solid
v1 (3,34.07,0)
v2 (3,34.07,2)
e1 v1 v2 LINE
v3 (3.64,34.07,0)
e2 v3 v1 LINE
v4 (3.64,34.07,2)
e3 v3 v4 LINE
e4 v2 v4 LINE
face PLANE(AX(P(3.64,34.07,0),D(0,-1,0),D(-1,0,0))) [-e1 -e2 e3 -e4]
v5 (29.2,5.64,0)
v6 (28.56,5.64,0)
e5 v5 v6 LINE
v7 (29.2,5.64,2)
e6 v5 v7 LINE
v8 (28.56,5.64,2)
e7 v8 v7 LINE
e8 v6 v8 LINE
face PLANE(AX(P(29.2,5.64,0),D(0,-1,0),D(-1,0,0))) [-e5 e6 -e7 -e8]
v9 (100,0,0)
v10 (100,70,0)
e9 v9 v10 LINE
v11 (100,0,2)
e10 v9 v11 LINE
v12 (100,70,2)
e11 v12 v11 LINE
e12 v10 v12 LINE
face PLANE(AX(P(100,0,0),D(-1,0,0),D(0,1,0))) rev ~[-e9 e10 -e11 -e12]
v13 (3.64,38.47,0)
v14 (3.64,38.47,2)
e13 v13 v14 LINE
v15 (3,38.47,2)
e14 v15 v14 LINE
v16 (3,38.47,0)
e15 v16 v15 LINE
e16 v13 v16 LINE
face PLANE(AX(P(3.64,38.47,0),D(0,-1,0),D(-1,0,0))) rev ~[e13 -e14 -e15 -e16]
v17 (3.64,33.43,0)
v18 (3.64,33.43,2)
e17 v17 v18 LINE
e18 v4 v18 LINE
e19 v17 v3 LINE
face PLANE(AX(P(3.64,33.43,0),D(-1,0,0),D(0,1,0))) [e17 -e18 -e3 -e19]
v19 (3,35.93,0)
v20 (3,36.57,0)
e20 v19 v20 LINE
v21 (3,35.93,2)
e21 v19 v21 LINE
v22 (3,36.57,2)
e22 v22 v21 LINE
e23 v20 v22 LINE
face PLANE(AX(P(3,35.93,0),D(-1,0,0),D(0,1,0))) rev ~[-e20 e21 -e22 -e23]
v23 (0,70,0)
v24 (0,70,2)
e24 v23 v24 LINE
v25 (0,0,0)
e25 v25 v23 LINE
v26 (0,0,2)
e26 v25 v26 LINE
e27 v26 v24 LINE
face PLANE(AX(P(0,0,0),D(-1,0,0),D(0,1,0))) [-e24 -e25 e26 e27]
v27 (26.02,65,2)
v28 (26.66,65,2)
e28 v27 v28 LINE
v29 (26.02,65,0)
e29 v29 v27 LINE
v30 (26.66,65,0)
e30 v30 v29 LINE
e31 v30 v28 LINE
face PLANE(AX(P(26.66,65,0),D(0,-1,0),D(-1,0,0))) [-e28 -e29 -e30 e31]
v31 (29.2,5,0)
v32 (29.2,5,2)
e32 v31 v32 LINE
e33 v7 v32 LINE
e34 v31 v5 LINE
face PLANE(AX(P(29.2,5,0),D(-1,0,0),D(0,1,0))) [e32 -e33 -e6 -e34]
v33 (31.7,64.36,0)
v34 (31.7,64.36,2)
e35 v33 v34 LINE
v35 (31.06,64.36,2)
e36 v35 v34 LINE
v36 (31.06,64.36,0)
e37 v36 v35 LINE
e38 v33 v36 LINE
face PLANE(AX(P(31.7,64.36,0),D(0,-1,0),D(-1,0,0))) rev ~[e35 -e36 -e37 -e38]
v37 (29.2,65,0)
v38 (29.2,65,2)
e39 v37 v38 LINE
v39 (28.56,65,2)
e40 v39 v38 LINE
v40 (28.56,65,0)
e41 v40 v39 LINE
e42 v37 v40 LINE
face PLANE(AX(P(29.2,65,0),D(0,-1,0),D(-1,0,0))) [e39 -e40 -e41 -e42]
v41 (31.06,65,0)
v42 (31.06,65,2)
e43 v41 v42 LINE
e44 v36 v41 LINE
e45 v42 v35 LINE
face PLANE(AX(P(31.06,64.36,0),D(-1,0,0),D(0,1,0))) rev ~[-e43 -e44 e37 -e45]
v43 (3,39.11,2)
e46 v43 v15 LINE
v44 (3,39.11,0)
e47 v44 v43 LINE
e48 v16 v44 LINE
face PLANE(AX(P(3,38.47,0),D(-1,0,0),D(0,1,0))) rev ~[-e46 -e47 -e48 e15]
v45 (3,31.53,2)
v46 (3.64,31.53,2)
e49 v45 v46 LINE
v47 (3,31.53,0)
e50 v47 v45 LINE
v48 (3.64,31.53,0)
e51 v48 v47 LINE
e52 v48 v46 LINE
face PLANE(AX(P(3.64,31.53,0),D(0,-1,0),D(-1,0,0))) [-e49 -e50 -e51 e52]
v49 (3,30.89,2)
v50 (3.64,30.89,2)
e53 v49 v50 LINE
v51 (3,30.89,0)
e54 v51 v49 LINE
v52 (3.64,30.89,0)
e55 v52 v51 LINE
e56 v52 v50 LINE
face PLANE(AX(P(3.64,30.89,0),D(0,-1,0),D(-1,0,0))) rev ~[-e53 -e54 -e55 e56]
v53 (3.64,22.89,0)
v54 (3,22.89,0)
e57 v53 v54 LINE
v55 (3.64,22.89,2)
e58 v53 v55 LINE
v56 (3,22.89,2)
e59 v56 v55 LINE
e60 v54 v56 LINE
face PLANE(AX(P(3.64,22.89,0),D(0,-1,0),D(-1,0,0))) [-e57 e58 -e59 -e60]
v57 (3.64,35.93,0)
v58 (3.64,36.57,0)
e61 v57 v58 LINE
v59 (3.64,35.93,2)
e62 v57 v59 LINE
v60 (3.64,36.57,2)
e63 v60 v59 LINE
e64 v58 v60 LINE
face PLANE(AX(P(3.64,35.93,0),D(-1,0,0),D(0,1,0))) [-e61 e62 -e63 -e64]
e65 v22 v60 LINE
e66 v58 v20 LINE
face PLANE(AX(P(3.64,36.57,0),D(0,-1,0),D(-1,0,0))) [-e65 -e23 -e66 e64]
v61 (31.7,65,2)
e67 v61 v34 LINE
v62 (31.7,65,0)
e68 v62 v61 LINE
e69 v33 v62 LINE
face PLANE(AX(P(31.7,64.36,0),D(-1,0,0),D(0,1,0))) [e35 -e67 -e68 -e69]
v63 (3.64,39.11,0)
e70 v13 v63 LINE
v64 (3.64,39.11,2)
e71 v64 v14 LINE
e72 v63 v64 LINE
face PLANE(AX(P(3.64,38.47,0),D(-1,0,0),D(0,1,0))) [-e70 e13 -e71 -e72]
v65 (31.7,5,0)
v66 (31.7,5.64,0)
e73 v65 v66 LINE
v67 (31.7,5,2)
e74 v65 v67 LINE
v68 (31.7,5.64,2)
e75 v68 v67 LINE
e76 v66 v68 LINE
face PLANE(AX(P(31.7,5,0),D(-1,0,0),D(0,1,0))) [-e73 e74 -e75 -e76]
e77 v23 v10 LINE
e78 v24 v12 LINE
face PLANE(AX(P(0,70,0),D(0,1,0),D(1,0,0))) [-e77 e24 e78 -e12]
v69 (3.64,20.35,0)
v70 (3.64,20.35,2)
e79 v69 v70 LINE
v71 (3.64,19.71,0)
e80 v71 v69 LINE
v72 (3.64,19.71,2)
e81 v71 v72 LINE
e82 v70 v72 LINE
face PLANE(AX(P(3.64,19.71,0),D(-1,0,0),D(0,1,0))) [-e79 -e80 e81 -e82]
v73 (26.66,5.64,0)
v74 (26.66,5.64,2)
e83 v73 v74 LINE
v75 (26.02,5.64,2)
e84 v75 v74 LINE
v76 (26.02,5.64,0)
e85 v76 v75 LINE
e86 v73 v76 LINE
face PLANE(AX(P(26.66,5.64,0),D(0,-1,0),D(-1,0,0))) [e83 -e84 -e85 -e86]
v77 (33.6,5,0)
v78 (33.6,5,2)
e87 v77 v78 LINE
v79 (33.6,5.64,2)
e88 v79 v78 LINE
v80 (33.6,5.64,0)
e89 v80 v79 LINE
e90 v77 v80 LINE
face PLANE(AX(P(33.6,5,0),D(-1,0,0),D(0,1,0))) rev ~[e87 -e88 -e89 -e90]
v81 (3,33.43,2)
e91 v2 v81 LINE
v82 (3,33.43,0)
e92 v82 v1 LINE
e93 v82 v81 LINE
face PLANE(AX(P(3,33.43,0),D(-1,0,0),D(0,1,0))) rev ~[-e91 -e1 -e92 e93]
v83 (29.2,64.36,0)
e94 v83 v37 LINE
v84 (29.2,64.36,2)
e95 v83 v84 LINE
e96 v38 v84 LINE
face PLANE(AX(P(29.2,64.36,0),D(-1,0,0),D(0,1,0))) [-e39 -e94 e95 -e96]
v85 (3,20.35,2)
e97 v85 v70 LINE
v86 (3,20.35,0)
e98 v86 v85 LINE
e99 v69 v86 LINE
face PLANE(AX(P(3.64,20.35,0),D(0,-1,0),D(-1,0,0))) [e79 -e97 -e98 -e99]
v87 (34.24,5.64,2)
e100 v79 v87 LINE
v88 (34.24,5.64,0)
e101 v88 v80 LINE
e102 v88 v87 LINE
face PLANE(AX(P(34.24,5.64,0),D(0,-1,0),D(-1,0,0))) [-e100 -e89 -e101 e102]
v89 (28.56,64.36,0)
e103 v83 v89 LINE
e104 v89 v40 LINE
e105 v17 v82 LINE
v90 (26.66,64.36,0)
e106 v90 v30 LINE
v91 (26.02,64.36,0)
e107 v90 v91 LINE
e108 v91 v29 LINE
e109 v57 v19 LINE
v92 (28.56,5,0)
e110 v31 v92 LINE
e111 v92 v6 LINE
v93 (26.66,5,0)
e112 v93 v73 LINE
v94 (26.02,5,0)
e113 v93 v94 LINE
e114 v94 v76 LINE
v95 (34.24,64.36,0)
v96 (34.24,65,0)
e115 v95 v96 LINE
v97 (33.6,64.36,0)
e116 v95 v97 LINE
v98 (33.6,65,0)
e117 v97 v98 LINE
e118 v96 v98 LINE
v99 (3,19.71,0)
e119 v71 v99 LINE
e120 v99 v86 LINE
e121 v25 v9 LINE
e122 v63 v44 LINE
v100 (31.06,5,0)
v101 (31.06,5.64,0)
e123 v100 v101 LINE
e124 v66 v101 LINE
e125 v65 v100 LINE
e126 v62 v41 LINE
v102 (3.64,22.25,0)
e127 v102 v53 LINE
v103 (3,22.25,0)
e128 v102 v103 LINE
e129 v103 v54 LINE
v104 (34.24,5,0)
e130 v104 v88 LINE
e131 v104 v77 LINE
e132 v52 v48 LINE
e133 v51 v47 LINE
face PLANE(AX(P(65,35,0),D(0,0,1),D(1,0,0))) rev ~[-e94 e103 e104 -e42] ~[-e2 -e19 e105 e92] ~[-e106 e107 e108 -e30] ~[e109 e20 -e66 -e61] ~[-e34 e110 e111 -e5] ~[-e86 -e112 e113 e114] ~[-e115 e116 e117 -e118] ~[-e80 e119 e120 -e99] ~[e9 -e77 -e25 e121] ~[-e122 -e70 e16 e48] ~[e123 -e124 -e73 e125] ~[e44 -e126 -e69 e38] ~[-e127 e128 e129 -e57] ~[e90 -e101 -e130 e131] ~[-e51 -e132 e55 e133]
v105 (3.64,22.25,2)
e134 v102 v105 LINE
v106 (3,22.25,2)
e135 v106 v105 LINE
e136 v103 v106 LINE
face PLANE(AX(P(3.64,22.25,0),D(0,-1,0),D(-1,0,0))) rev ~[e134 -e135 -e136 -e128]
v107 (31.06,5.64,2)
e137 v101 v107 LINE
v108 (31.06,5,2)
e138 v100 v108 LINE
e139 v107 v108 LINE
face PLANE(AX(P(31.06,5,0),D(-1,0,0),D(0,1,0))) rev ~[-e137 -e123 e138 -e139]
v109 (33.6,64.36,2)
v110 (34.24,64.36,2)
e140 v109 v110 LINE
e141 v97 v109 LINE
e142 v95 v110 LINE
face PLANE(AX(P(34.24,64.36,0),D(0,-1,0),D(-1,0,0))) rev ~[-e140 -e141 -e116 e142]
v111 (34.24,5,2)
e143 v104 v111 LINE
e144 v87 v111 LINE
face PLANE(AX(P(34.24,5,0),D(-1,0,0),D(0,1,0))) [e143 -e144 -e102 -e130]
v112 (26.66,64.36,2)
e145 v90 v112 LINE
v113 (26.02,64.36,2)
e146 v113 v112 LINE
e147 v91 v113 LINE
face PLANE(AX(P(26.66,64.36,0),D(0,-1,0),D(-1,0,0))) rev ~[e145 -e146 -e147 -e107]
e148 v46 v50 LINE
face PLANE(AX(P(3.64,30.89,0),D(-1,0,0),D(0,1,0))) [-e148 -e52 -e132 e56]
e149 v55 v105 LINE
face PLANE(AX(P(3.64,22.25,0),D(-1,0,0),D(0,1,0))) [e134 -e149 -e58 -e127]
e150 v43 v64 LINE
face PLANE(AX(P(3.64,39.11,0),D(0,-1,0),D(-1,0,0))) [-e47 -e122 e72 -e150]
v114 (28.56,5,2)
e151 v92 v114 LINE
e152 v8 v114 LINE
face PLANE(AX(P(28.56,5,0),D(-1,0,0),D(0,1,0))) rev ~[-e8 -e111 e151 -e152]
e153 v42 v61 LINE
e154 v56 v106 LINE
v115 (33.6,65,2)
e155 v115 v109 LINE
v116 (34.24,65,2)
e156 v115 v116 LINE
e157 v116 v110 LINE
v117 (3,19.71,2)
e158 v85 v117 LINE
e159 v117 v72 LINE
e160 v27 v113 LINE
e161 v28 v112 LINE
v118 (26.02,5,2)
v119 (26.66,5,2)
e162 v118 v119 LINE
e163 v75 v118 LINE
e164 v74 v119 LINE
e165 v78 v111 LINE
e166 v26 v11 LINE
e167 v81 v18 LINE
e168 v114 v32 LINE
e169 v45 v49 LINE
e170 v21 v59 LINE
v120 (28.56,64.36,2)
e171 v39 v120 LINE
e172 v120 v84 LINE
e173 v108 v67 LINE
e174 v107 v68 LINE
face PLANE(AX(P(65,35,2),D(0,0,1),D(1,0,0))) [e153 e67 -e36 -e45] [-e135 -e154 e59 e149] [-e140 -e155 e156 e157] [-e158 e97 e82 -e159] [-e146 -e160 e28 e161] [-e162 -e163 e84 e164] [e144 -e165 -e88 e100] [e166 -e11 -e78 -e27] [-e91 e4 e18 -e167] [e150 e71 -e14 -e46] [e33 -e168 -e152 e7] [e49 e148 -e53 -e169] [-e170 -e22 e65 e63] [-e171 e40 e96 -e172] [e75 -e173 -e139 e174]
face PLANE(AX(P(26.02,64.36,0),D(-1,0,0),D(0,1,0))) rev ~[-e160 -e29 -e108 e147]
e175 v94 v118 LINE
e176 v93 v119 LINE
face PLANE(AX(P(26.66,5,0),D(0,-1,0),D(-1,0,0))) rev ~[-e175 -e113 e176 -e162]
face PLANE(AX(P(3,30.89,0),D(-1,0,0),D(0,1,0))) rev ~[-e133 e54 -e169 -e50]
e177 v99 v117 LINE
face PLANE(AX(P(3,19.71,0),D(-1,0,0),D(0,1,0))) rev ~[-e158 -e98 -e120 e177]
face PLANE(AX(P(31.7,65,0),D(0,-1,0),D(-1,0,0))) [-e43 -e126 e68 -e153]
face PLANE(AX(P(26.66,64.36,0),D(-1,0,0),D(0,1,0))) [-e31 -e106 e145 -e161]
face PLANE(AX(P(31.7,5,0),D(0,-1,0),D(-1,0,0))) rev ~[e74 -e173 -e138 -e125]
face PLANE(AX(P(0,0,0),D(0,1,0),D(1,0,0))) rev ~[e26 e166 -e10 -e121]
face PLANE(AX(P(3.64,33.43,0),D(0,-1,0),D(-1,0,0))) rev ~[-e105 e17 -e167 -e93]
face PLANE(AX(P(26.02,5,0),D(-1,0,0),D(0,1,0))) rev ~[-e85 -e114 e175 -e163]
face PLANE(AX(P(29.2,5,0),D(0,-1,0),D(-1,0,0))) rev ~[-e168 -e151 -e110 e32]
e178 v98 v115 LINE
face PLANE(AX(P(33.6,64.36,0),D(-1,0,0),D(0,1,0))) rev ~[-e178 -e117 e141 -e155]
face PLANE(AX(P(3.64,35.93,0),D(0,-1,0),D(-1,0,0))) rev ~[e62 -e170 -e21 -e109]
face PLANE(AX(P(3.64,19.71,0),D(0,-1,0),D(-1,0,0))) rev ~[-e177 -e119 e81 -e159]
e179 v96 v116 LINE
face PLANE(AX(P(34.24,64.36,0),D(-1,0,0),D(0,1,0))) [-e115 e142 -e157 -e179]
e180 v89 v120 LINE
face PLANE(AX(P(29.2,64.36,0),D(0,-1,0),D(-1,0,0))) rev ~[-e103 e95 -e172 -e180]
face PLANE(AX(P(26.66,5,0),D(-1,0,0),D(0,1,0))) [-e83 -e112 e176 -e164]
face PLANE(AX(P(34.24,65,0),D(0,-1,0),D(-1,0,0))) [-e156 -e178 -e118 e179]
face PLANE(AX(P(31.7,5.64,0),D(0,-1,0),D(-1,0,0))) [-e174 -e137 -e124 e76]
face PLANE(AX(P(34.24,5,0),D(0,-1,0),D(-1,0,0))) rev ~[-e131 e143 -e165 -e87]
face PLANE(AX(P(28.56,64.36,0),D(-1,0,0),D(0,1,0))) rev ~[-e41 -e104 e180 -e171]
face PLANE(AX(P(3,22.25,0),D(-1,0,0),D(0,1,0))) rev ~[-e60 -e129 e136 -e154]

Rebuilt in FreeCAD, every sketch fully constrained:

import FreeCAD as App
import Part
import Sketcher
Q = App.Units.Quantity


def add_polygon(sketch, points):
    """Adds a closed chain of lines whose ends are joined by coincident constraints."""
    first, n = sketch.GeometryCount, len(points)
    for a, b in zip(points, points[1:] + points[:1]):
        sketch.addGeometry(Part.LineSegment(App.Vector(*a, 0), App.Vector(*b, 0)), False)
    for i in range(n):
        sketch.addConstraint(Sketcher.Constraint("Coincident", first + i, 2, first + (i + 1) % n, 1))

doc = App.newDocument("Part")
body = doc.addObject("PartDesign::Body", "Body")

sketch1 = body.newObject("Sketcher::SketchObject", "Sketch")
sketch1.AttachmentSupport = (doc.getObject("XY_Plane"), [""])
sketch1.MapMode = "FlatFace"
add_polygon(sketch1, [(0, 70), (0, 0), (130, 0), (130, 70)])
sketch1.addConstraint(Sketcher.Constraint("Vertical", 0))
sketch1.addConstraint(Sketcher.Constraint("Horizontal", 1))
sketch1.addConstraint(Sketcher.Constraint("Vertical", 2))
sketch1.addConstraint(Sketcher.Constraint("Horizontal", 3))
sketch1.addConstraint(Sketcher.Constraint("Coincident", 0, 2, -1, 1))
sketch1.addConstraint(Sketcher.Constraint("DistanceX", 1, 1, 1, 2, Q("130 mm")))
sketch1.addConstraint(Sketcher.Constraint("DistanceY", 0, 2, 0, 1, Q("70 mm")))
pad1 = body.newObject("PartDesign::Pad", "Pad")
pad1.Profile = sketch1
pad1.Length = 2

sketch2 = body.newObject("Sketcher::SketchObject", "Sketch001")
sketch2.AttachmentSupport = (doc.getObject("XY_Plane"), [""])
sketch2.MapMode = "FlatFace"
add_polygon(sketch2, [(130, 70), (130, 0), (100, 0), (100, 70)])
sketch2.addConstraint(Sketcher.Constraint("Vertical", 0))
sketch2.addConstraint(Sketcher.Constraint("Horizontal", 1))
sketch2.addConstraint(Sketcher.Constraint("Vertical", 2))
sketch2.addConstraint(Sketcher.Constraint("Horizontal", 3))
sketch2.addConstraint(Sketcher.Constraint("PointOnObject", 0, 2, -1))
sketch2.addConstraint(Sketcher.Constraint("DistanceX", 1, 2, 1, 1, Q("30 mm")))
sketch2.addConstraint(Sketcher.Constraint("DistanceY", 0, 2, 0, 1, Q("70 mm")))
sketch2.addConstraint(Sketcher.Constraint("DistanceX", -1, 1, 0, 2, Q("130 mm")))
pocket1 = body.newObject("PartDesign::Pocket", "Pocket")
pocket1.Profile = sketch2
pocket1.Type = "ThroughAll"
pocket1.Reversed = True

sketch3 = body.newObject("Sketcher::SketchObject", "Sketch002")
sketch3.AttachmentSupport = (doc.getObject("XY_Plane"), [""])
sketch3.MapMode = "FlatFace"
add_polygon(sketch3, [(3.6, 36.6), (3.6, 35.9), (3, 35.9), (3, 36.6)])
add_polygon(sketch3, [(3.6, 31.5), (3.6, 30.9), (3, 30.9), (3, 31.5)])
add_polygon(sketch3, [(3.6, 39.1), (3.6, 38.5), (3, 38.5), (3, 39.1)])
add_polygon(sketch3, [(3.6, 34.1), (3.6, 33.4), (3, 33.4), (3, 34.1)])
add_polygon(sketch3, [(29.2, 5.6), (29.2, 5), (28.6, 5), (28.6, 5.6)])
add_polygon(sketch3, [(34.2, 5.6), (34.2, 5), (33.6, 5), (33.6, 5.6)])
add_polygon(sketch3, [(26.7, 5.6), (26.7, 5), (26, 5), (26, 5.6)])
add_polygon(sketch3, [(31.7, 5.6), (31.7, 5), (31.1, 5), (31.1, 5.6)])
add_polygon(sketch3, [(34.2, 65), (34.2, 64.4), (33.6, 64.4), (33.6, 65)])
add_polygon(sketch3, [(31.7, 65), (31.7, 64.4), (31.1, 64.4), (31.1, 65)])
add_polygon(sketch3, [(26.7, 65), (26.7, 64.4), (26, 64.4), (26, 65)])
add_polygon(sketch3, [(29.2, 65), (29.2, 64.4), (28.6, 64.4), (28.6, 65)])
add_polygon(sketch3, [(3.6, 20.4), (3.6, 19.7), (3, 19.7), (3, 20.4)])
add_polygon(sketch3, [(3.6, 22.9), (3.6, 22.2), (3, 22.2), (3, 22.9)])
sketch3.addConstraint(Sketcher.Constraint("Vertical", 0))
sketch3.addConstraint(Sketcher.Constraint("Horizontal", 1))
sketch3.addConstraint(Sketcher.Constraint("Vertical", 2))
sketch3.addConstraint(Sketcher.Constraint("Horizontal", 3))
sketch3.addConstraint(Sketcher.Constraint("Vertical", 4))
sketch3.addConstraint(Sketcher.Constraint("Horizontal", 5))
sketch3.addConstraint(Sketcher.Constraint("Vertical", 6))
sketch3.addConstraint(Sketcher.Constraint("Horizontal", 7))
sketch3.addConstraint(Sketcher.Constraint("Vertical", 8))
sketch3.addConstraint(Sketcher.Constraint("Horizontal", 9))
sketch3.addConstraint(Sketcher.Constraint("Vertical", 10))
sketch3.addConstraint(Sketcher.Constraint("Horizontal", 11))
sketch3.addConstraint(Sketcher.Constraint("Vertical", 12))
sketch3.addConstraint(Sketcher.Constraint("Horizontal", 13))
sketch3.addConstraint(Sketcher.Constraint("Vertical", 14))
sketch3.addConstraint(Sketcher.Constraint("Horizontal", 15))
sketch3.addConstraint(Sketcher.Constraint("Vertical", 16))
sketch3.addConstraint(Sketcher.Constraint("Horizontal", 17))
sketch3.addConstraint(Sketcher.Constraint("Vertical", 18))
sketch3.addConstraint(Sketcher.Constraint("Horizontal", 19))
sketch3.addConstraint(Sketcher.Constraint("Vertical", 20))
sketch3.addConstraint(Sketcher.Constraint("Horizontal", 21))
sketch3.addConstraint(Sketcher.Constraint("Vertical", 22))
sketch3.addConstraint(Sketcher.Constraint("Horizontal", 23))
sketch3.addConstraint(Sketcher.Constraint("Vertical", 24))
sketch3.addConstraint(Sketcher.Constraint("Horizontal", 25))
sketch3.addConstraint(Sketcher.Constraint("Vertical", 26))
sketch3.addConstraint(Sketcher.Constraint("Horizontal", 27))
sketch3.addConstraint(Sketcher.Constraint("Vertical", 28))
sketch3.addConstraint(Sketcher.Constraint("Horizontal", 29))
sketch3.addConstraint(Sketcher.Constraint("Vertical", 30))
sketch3.addConstraint(Sketcher.Constraint("Horizontal", 31))
sketch3.addConstraint(Sketcher.Constraint("Vertical", 32))
sketch3.addConstraint(Sketcher.Constraint("Horizontal", 33))
sketch3.addConstraint(Sketcher.Constraint("Vertical", 34))
sketch3.addConstraint(Sketcher.Constraint("Horizontal", 35))
sketch3.addConstraint(Sketcher.Constraint("Vertical", 36))
sketch3.addConstraint(Sketcher.Constraint("Horizontal", 37))
sketch3.addConstraint(Sketcher.Constraint("Vertical", 38))
sketch3.addConstraint(Sketcher.Constraint("Horizontal", 39))
sketch3.addConstraint(Sketcher.Constraint("Vertical", 40))
sketch3.addConstraint(Sketcher.Constraint("Horizontal", 41))
sketch3.addConstraint(Sketcher.Constraint("Vertical", 42))
sketch3.addConstraint(Sketcher.Constraint("Horizontal", 43))
sketch3.addConstraint(Sketcher.Constraint("Vertical", 44))
sketch3.addConstraint(Sketcher.Constraint("Horizontal", 45))
sketch3.addConstraint(Sketcher.Constraint("Vertical", 46))
sketch3.addConstraint(Sketcher.Constraint("Horizontal", 47))
sketch3.addConstraint(Sketcher.Constraint("Vertical", 48))
sketch3.addConstraint(Sketcher.Constraint("Horizontal", 49))
sketch3.addConstraint(Sketcher.Constraint("Vertical", 50))
sketch3.addConstraint(Sketcher.Constraint("Horizontal", 51))
sketch3.addConstraint(Sketcher.Constraint("Vertical", 52))
sketch3.addConstraint(Sketcher.Constraint("Horizontal", 53))
sketch3.addConstraint(Sketcher.Constraint("Vertical", 54))
sketch3.addConstraint(Sketcher.Constraint("Horizontal", 55))
sketch3.addConstraint(Sketcher.Constraint("Horizontal", 17, 2, 20, 2))
sketch3.addConstraint(Sketcher.Constraint("Horizontal", 19, 2, 22, 2))
sketch3.addConstraint(Sketcher.Constraint("Horizontal", 21, 2, 24, 2))
sketch3.addConstraint(Sketcher.Constraint("Horizontal", 23, 2, 26, 2))
sketch3.addConstraint(Sketcher.Constraint("Horizontal", 25, 2, 28, 2))
sketch3.addConstraint(Sketcher.Constraint("Horizontal", 27, 2, 30, 2))
sketch3.addConstraint(Sketcher.Constraint("Horizontal", 33, 2, 36, 2))
sketch3.addConstraint(Sketcher.Constraint("Horizontal", 35, 2, 38, 2))
sketch3.addConstraint(Sketcher.Constraint("Horizontal", 37, 2, 40, 2))
sketch3.addConstraint(Sketcher.Constraint("Horizontal", 39, 2, 42, 2))
sketch3.addConstraint(Sketcher.Constraint("Horizontal", 41, 2, 44, 2))
sketch3.addConstraint(Sketcher.Constraint("Horizontal", 43, 2, 46, 2))
sketch3.addConstraint(Sketcher.Constraint("Vertical", 3, 2, 4, 2))
sketch3.addConstraint(Sketcher.Constraint("Vertical", 2, 2, 5, 2))
sketch3.addConstraint(Sketcher.Constraint("Vertical", 7, 2, 8, 2))
sketch3.addConstraint(Sketcher.Constraint("Vertical", 6, 2, 9, 2))
sketch3.addConstraint(Sketcher.Constraint("Vertical", 11, 2, 12, 2))
sketch3.addConstraint(Sketcher.Constraint("Vertical", 10, 2, 13, 2))
sketch3.addConstraint(Sketcher.Constraint("Vertical", 23, 2, 32, 2))
sketch3.addConstraint(Sketcher.Constraint("Vertical", 22, 2, 33, 2))
sketch3.addConstraint(Sketcher.Constraint("Vertical", 31, 2, 36, 2))
sketch3.addConstraint(Sketcher.Constraint("Vertical", 30, 2, 37, 2))
sketch3.addConstraint(Sketcher.Constraint("Vertical", 27, 2, 40, 2))
sketch3.addConstraint(Sketcher.Constraint("Vertical", 26, 2, 41, 2))
sketch3.addConstraint(Sketcher.Constraint("Vertical", 19, 2, 44, 2))
sketch3.addConstraint(Sketcher.Constraint("Vertical", 18, 2, 45, 2))
sketch3.addConstraint(Sketcher.Constraint("Vertical", 15, 2, 48, 2))
sketch3.addConstraint(Sketcher.Constraint("Vertical", 14, 2, 49, 2))
sketch3.addConstraint(Sketcher.Constraint("Vertical", 51, 2, 52, 2))
sketch3.addConstraint(Sketcher.Constraint("Vertical", 50, 2, 53, 2))
sketch3.addConstraint(Sketcher.Constraint("Equal", 15, 17))
sketch3.addConstraint(Sketcher.Constraint("Equal", 19, 21))
sketch3.addConstraint(Sketcher.Constraint("Equal", 23, 25))
sketch3.addConstraint(Sketcher.Constraint("Equal", 27, 29))
sketch3.addConstraint(Sketcher.Constraint("Equal", 55, 0))
sketch3.addConstraint(Sketcher.Constraint("Equal", 2, 4))
sketch3.addConstraint(Sketcher.Constraint("Equal", 6, 8))
sketch3.addConstraint(Sketcher.Constraint("Equal", 10, 12))
sketch3.addConstraint(Sketcher.Constraint("Equal", 14, 16))
sketch3.addConstraint(Sketcher.Constraint("Equal", 30, 32))
sketch3.addConstraint(Sketcher.Constraint("Equal", 46, 48))
sketch3.addConstraint(Sketcher.Constraint("Equal", 50, 52))
sketch3.addConstraint(Sketcher.Constraint("DistanceX", -1, 1, 1, 2, Q("3 mm")))
sketch3.addConstraint(Sketcher.Constraint("DistanceY", -1, 1, 16, 2, Q("5 mm")))
sketch3.addConstraint(Sketcher.Constraint("DistanceY", -1, 1, 34, 2, Q("65 mm")))
sketch3.addConstraint(Sketcher.Constraint("DistanceX", 1, 2, 1, 1, Q("0.64 mm")))
sketch3.addConstraint(Sketcher.Constraint("DistanceX", -1, 1, 16, 2, Q("29.2 mm")))
sketch3.addConstraint(Sketcher.Constraint("DistanceX", -1, 1, 21, 2, Q("33.6 mm")))
sketch3.addConstraint(Sketcher.Constraint("DistanceX", -1, 1, 28, 2, Q("31.7 mm")))
sketch3.addConstraint(Sketcher.Constraint("DistanceY", 6, 2, 1, 2, Q("4.4 mm")))
sketch3.addConstraint(Sketcher.Constraint("DistanceY", 3, 2, 8, 2, Q("1.9 mm")))
sketch3.addConstraint(Sketcher.Constraint("DistanceY", 7, 2, 12, 2, Q("1.9 mm")))
sketch3.addConstraint(Sketcher.Constraint("DistanceX", 24, 2, 17, 2, Q("1.9 mm")))
sketch3.addConstraint(Sketcher.Constraint("DistanceY", 51, 2, 52, 2, Q("1.9 mm")))
sketch3.addConstraint(Sketcher.Constraint("DistanceY", -1, 1, 0, 2, Q("35.93 mm")))
sketch3.addConstraint(Sketcher.Constraint("DistanceY", -1, 1, 48, 2, Q("19.71 mm")))
pocket2 = body.newObject("PartDesign::Pocket", "Pocket001")
pocket2.Profile = sketch3
pocket2.Type = "ThroughAll"
pocket2.Reversed = True

doc.recompute()
